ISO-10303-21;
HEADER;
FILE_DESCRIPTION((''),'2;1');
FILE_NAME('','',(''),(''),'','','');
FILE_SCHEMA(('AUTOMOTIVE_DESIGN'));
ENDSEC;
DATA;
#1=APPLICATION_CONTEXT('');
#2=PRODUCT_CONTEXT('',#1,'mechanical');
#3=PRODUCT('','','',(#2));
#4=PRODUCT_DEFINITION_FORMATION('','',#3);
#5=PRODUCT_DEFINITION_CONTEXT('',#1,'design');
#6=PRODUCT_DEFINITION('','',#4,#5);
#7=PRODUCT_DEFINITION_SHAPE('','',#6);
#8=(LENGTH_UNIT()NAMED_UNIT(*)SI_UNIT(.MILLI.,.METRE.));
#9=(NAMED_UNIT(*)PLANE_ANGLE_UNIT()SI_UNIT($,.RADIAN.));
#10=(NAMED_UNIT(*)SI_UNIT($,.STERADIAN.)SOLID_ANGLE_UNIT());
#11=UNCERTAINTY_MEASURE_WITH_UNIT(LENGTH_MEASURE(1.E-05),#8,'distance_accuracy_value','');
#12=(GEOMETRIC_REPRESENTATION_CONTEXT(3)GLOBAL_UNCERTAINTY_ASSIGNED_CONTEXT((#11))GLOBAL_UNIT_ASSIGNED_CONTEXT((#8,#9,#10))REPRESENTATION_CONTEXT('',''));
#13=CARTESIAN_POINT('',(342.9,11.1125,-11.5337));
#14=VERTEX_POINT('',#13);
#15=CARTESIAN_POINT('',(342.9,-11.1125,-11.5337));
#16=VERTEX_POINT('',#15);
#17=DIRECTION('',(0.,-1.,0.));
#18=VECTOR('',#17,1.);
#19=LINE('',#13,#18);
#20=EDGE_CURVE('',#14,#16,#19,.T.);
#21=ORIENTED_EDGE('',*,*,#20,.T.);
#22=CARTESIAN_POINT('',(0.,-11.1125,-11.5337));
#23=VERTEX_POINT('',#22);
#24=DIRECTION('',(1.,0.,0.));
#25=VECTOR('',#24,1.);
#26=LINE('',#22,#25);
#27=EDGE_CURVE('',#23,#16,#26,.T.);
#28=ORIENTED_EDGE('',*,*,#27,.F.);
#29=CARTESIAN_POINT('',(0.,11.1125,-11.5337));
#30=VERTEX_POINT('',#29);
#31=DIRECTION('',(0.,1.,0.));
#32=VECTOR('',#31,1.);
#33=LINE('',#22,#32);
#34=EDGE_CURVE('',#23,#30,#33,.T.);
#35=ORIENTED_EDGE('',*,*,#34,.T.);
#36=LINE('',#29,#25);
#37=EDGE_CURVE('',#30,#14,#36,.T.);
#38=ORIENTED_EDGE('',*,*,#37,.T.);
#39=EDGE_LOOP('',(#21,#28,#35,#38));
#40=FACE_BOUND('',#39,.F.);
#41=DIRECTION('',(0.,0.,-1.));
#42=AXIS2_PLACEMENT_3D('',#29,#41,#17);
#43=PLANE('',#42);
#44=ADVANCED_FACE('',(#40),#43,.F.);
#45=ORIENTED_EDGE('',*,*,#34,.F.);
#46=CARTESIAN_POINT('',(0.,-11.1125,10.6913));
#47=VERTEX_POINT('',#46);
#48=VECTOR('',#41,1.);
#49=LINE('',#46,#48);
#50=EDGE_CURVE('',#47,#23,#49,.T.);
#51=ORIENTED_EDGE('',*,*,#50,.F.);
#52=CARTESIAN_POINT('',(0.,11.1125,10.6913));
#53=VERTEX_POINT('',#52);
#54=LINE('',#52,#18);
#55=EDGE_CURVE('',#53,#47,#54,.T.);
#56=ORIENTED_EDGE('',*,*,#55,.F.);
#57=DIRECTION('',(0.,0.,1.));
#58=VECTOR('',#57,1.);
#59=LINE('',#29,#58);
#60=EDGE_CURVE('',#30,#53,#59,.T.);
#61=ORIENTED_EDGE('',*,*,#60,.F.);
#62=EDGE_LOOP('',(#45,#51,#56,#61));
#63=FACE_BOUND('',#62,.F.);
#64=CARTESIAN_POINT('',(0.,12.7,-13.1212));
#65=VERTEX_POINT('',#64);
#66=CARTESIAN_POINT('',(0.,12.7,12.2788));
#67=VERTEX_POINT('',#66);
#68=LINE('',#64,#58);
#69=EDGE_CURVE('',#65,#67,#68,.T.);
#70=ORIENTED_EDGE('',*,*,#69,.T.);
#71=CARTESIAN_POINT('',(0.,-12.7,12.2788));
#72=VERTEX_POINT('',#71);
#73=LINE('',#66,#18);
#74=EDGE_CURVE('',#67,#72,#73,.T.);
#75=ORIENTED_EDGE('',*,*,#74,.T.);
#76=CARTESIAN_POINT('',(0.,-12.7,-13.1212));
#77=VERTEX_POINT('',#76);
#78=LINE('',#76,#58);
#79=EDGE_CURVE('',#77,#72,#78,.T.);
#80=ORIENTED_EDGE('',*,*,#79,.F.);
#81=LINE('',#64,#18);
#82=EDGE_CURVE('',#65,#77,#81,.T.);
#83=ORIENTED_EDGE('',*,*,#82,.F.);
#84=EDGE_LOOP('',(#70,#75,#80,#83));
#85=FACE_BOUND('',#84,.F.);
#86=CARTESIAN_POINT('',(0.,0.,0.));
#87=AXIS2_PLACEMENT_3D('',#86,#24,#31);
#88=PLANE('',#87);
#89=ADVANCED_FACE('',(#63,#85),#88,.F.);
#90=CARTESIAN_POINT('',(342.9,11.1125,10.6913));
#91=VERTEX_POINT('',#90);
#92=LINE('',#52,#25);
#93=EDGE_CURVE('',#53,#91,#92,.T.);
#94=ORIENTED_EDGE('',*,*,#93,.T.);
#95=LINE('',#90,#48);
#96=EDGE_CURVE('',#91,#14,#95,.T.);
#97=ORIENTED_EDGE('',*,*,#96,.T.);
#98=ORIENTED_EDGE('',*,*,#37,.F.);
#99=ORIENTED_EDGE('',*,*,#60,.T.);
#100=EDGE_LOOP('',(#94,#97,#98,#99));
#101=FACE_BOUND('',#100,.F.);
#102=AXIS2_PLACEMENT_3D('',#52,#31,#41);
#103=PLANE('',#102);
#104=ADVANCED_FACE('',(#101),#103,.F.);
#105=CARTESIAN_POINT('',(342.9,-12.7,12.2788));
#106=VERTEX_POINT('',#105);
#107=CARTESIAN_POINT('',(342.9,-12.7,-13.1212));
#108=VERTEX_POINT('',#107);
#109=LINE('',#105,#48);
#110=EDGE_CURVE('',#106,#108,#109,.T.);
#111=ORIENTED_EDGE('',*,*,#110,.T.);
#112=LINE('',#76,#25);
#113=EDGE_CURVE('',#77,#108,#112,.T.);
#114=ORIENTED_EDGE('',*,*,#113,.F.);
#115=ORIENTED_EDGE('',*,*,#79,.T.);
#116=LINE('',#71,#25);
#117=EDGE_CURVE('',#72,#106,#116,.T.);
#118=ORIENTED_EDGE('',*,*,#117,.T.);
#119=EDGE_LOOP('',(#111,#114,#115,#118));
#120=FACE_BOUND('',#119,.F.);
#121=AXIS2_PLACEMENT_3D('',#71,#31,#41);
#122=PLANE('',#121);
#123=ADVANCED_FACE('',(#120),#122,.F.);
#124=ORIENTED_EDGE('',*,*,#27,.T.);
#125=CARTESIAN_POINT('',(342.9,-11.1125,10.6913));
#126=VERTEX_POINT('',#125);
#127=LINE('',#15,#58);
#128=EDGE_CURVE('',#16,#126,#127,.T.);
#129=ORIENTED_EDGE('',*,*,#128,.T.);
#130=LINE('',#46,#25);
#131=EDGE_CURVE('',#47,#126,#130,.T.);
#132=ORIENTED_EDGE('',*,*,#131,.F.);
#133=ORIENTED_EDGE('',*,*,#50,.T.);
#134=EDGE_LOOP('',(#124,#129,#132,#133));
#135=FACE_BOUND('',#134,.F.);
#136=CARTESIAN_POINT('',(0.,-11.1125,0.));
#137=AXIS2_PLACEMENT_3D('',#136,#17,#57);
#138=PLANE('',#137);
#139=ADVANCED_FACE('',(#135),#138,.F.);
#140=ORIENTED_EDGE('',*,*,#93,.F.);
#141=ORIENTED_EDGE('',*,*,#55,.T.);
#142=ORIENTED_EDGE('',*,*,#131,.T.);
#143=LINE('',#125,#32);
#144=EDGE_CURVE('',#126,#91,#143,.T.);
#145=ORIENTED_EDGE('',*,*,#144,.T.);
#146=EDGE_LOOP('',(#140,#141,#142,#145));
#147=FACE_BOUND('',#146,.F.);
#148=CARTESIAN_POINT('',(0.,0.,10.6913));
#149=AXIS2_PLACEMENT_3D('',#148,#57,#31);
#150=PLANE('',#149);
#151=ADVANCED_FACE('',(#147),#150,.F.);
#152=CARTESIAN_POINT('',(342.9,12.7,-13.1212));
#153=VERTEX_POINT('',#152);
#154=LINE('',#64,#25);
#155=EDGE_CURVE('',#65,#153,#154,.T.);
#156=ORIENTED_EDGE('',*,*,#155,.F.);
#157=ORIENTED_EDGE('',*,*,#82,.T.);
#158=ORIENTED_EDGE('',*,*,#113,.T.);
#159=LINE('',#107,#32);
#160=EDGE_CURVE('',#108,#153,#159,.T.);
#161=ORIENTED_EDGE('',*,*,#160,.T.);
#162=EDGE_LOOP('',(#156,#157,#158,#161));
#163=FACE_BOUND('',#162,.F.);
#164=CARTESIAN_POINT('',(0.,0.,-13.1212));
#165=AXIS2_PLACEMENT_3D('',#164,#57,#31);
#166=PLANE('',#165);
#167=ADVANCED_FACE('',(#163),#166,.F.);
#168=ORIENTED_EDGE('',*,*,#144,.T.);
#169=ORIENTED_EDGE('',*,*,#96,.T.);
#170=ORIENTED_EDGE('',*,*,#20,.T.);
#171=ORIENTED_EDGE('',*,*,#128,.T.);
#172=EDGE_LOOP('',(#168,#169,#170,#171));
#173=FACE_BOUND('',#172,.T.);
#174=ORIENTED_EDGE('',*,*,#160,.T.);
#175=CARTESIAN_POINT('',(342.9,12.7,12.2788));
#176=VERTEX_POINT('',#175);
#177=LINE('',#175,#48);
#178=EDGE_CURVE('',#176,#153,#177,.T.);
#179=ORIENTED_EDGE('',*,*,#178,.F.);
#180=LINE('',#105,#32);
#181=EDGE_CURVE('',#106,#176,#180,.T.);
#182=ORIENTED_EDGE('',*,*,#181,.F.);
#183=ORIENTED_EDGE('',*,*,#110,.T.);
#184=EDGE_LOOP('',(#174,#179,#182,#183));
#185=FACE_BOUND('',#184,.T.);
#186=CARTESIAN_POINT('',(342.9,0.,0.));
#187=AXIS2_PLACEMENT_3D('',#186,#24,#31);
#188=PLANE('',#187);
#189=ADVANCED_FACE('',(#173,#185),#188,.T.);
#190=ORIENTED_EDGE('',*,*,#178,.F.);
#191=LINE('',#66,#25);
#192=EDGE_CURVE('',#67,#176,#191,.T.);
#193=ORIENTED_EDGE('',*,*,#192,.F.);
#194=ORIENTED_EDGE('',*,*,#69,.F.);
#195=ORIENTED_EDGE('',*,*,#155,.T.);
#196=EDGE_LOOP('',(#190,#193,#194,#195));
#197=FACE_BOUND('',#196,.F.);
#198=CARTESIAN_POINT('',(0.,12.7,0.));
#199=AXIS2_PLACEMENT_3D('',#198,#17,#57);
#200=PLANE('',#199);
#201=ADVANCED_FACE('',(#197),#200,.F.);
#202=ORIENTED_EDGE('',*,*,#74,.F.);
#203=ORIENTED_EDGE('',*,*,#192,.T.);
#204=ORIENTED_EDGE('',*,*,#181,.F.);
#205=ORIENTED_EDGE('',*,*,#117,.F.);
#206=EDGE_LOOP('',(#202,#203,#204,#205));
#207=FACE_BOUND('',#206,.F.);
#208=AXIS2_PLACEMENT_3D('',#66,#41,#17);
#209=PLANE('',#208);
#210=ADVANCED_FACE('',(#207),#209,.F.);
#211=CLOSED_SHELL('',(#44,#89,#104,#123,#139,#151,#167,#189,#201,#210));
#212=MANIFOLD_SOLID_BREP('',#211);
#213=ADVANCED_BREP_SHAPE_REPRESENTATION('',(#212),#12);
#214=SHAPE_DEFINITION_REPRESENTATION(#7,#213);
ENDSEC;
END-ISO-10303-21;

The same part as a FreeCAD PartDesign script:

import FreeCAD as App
import Part
import Sketcher

V = App.Vector
Q = App.Units.Quantity


def add_polygon(sketch, points):
    """Adds a closed chain of lines whose ends are joined by coincident constraints."""
    first, n = sketch.GeometryCount, len(points)
    for a, b in zip(points, points[1:] + points[:1]):
        sketch.addGeometry(Part.LineSegment(App.Vector(*a, 0), App.Vector(*b, 0)), False)
    for i in range(n):
        sketch.addConstraint(Sketcher.Constraint("Coincident", first + i, 2, first + (i + 1) % n, 1))

doc = App.newDocument("Part")
body = doc.addObject("PartDesign::Body", "Body")

# Sketch on YZ plane
sketch1 = body.newObject("Sketcher::SketchObject", "Sketch")
sketch1.AttachmentSupport = (doc.getObject("YZ_Plane"), [""])
sketch1.MapMode = "FlatFace"
add_polygon(sketch1, [(13, 12), (-13, 12), (-13, -13), (13, -13)])  # lines 0-3
add_polygon(sketch1, [(11, 11), (11, -12), (-11, -12), (-11, 11)])  # lines 4-7
sketch1.addConstraint([
    Sketcher.Constraint("Horizontal", 0),
    Sketcher.Constraint("Vertical", 1),
    Sketcher.Constraint("Horizontal", 2),
    Sketcher.Constraint("Vertical", 3),
    Sketcher.Constraint("Vertical", 4),
    Sketcher.Constraint("Horizontal", 5),
    Sketcher.Constraint("Vertical", 6),
    Sketcher.Constraint("Horizontal", 7),
    Sketcher.Constraint("Equal", 2, 1),
    Sketcher.Constraint("Equal", 7, 4),
    Sketcher.Constraint("DistanceX", 0, 2, 0, 1, Q("1 in")),
    Sketcher.Constraint("DistanceX", 4, 2, 2, 2, Q("0.0625 in")),
    Sketcher.Constraint("DistanceY", 2, 2, 4, 2, Q("0.0625 in")),
    Sketcher.Constraint("DistanceX", 1, 2, 5, 2, Q("0.0625 in")),
    Sketcher.Constraint("DistanceX", 0, 2, -1, 1, Q("0.5 in")),
    Sketcher.Constraint("DistanceY", -1, 1, 0, 2, 12.2788),
])
pad1 = body.newObject("PartDesign::Pad", "Pad")
pad1.Profile = sketch1
pad1.Length = Q("13.5 in")

doc.recompute()
